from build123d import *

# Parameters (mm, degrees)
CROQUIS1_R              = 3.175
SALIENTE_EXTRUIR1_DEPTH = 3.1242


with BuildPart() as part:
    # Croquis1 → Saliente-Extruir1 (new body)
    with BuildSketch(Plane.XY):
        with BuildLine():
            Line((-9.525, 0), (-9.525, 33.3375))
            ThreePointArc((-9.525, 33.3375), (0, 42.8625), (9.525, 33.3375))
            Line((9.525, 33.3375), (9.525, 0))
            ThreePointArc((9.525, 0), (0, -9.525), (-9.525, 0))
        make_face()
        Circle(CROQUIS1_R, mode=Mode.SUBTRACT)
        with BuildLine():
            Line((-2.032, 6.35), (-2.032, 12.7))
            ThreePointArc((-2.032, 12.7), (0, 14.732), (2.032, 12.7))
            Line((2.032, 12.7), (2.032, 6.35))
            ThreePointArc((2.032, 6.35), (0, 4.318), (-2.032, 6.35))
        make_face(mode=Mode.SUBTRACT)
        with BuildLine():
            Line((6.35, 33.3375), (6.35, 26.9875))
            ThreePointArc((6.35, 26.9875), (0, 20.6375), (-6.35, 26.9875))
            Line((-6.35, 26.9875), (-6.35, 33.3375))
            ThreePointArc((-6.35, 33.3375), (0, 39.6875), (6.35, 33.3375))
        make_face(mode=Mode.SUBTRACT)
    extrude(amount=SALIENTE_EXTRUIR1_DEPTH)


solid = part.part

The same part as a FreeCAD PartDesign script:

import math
import FreeCAD as App
import Part
import Sketcher

V = App.Vector
Q = App.Units.Quantity

doc = App.newDocument("Part")
body = doc.addObject("PartDesign::Body", "Body")

sketch1 = body.newObject("Sketcher::SketchObject", "Sketch")
sketch1.AttachmentSupport = (doc.getObject("XY_Plane"), [""])
sketch1.MapMode = "FlatFace"
sketch1.addGeometry([
    Part.LineSegment(V(-9.525, 33.3375, 0), V(-9.525, 0, 0)),
    Part.ArcOfCircle(Part.Circle(V(0, 0, 0), V(0, 0, 1), 9.525), math.radians(180), math.radians(360)),
    Part.LineSegment(V(9.525, 0, 0), V(9.525, 33.3375, 0)),
    Part.ArcOfCircle(Part.Circle(V(0, 33.3375, 0), V(0, 0, 1), 9.525), math.radians(0), math.radians(180)),
    Part.Circle(V(0, 0, 0), V(0, 0, 1), 3.175),
    Part.LineSegment(V(-2.032, 6.35, 0), V(-2.032, 12.7, 0)),
    Part.ArcOfCircle(Part.Circle(V(0, 12.7, 0), V(0, 0, 1), 2.032), math.radians(0), math.radians(180)),
    Part.LineSegment(V(2.032, 12.7, 0), V(2.032, 6.35, 0)),
    Part.ArcOfCircle(Part.Circle(V(0, 6.35, 0), V(0, 0, 1), 2.032), math.radians(180), math.radians(360)),
    Part.LineSegment(V(6.35, 33.3375, 0), V(6.35, 26.9875, 0)),
    Part.ArcOfCircle(Part.Circle(V(0, 26.9875, 0), V(0, 0, 1), 6.35), math.radians(180), math.radians(360)),
    Part.LineSegment(V(-6.35, 26.9875, 0), V(-6.35, 33.3375, 0)),
    Part.ArcOfCircle(Part.Circle(V(0, 33.3375, 0), V(0, 0, 1), 6.35), math.radians(0), math.radians(180)),
], False)
sketch1.addConstraint([
    Sketcher.Constraint("Tangent", 0, 2, 1, 1),
    Sketcher.Constraint("Tangent", 1, 2, 2, 1),
    Sketcher.Constraint("Tangent", 2, 2, 3, 1),
    Sketcher.Constraint("Tangent", 3, 2, 0, 1),
    Sketcher.Constraint("Tangent", 5, 2, 6, 2),
    Sketcher.Constraint("Tangent", 6, 1, 7, 1),
    Sketcher.Constraint("Tangent", 7, 2, 8, 2),
    Sketcher.Constraint("Tangent", 8, 1, 5, 1),
    Sketcher.Constraint("Tangent", 9, 2, 10, 2),
    Sketcher.Constraint("Tangent", 10, 1, 11, 1),
    Sketcher.Constraint("Tangent", 11, 2, 12, 2),
    Sketcher.Constraint("Tangent", 12, 1, 9, 1),
    Sketcher.Constraint("Vertical", 0),
    Sketcher.Constraint("Vertical", 2),
    Sketcher.Constraint("Vertical", 5),
    Sketcher.Constraint("Vertical", 7),
    Sketcher.Constraint("Vertical", 9),
    Sketcher.Constraint("Vertical", 11),
    Sketcher.Constraint("Coincident", 1, 3, -1, 1),
    Sketcher.Constraint("Coincident", 4, 3, -1, 1),
    Sketcher.Constraint("Coincident", 12, 3, 3, 3),
    Sketcher.Constraint("PointOnObject", 6, 3, -2),
    Sketcher.Constraint("Equal", 7, 9),
    Sketcher.Constraint("Diameter", 4, Q("0.25 in")),
    Sketcher.Constraint("Radius", 6, Q("0.08 in")),
    Sketcher.Constraint("Radius", 10, Q("0.25 in")),
    Sketcher.Constraint("Radius", 1, Q("0.375 in")),
    Sketcher.Constraint("DistanceY", 5, 1, 5, 2, Q("0.25 in")),
    Sketcher.Constraint("DistanceY", -1, 1, 6, 3, Q("0.5 in")),
    Sketcher.Constraint("DistanceY", 0, 2, 0, 1, Q("1.3125 in")),
])
pad1 = body.newObject("PartDesign::Pad", "Pad")
pad1.Profile = sketch1
pad1.Length = Q("0.123 in")

doc.recompute()
